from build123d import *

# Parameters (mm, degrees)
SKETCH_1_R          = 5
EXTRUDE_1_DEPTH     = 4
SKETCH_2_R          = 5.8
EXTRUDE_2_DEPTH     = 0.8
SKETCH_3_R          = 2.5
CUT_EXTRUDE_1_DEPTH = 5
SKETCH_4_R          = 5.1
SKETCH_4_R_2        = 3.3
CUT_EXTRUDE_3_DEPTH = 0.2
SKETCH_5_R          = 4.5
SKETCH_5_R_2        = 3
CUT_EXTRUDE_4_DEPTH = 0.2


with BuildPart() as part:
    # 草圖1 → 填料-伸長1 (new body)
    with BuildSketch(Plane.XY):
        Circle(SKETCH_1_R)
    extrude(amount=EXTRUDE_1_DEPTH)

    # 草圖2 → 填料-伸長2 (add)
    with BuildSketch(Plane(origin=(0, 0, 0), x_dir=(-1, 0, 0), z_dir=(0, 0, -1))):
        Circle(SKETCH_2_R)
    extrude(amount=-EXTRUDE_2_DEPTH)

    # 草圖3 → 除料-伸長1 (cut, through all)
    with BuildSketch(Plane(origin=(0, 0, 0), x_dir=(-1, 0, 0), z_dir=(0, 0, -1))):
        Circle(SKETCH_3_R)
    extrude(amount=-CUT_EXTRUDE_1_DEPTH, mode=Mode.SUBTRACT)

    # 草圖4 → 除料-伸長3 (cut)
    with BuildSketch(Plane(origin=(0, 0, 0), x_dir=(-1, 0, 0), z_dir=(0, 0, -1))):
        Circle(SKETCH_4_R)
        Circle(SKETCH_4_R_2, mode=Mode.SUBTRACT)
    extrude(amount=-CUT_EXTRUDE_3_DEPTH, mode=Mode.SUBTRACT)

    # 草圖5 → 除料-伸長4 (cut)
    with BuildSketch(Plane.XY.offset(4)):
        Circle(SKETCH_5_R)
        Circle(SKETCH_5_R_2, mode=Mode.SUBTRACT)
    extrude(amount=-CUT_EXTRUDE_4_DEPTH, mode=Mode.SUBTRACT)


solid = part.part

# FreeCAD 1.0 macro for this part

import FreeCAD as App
import Part
import Sketcher
from FreeCAD import Vector
Q = App.Units.Quantity

doc = App.newDocument("Part")
body = doc.addObject("PartDesign::Body", "Body")

sketch1 = body.newObject("Sketcher::SketchObject", "Sketch")
sketch1.AttachmentSupport = (doc.getObject("XY_Plane"), [""])
sketch1.MapMode = "FlatFace"
sketch1.addGeometry(Part.Circle(Vector(0, 0, 0), Vector(0, 0, 1), 5), False)
sketch1.addConstraint(Sketcher.Constraint("Coincident", 0, 3, -1, 1))
sketch1.addConstraint(Sketcher.Constraint("Diameter", 0, Q("10 mm")))
pad1 = body.newObject("PartDesign::Pad", "Pad")
pad1.Profile = sketch1
pad1.Length = 4

sketch2 = body.newObject("Sketcher::SketchObject", "Sketch001")
sketch2.AttachmentSupport = (doc.getObject("XY_Plane"), [""])
sketch2.MapMode = "FlatFace"
sketch2.addGeometry(Part.Circle(Vector(0, 0, 0), Vector(0, 0, 1), 6), False)
sketch2.addConstraint(Sketcher.Constraint("Coincident", 0, 3, -1, 1))
sketch2.addConstraint(Sketcher.Constraint("Diameter", 0, Q("11.6 mm")))
pad2 = body.newObject("PartDesign::Pad", "Pad001")
pad2.Profile = sketch2
pad2.Length = 0.8

sketch3 = body.newObject("Sketcher::SketchObject", "Sketch002")
sketch3.AttachmentSupport = (doc.getObject("XY_Plane"), [""])
sketch3.MapMode = "FlatFace"
sketch3.addGeometry(Part.Circle(Vector(0, 0, 0), Vector(0, 0, 1), 2.5), False)
sketch3.addConstraint(Sketcher.Constraint("Coincident", 0, 3, -1, 1))
sketch3.addConstraint(Sketcher.Constraint("Diameter", 0, Q("5 mm")))
pocket1 = body.newObject("PartDesign::Pocket", "Pocket")
pocket1.Profile = sketch3
pocket1.Type = "ThroughAll"
pocket1.Reversed = True

sketch4 = body.newObject("Sketcher::SketchObject", "Sketch003")
sketch4.AttachmentSupport = (doc.getObject("XY_Plane"), [""])
sketch4.MapMode = "FlatFace"
sketch4.addGeometry(Part.Circle(Vector(0, 0, 0), Vector(0, 0, 1), 5.1), False)
sketch4.addGeometry(Part.Circle(Vector(0, 0, 0), Vector(0, 0, 1), 3.3), False)
sketch4.addConstraint(Sketcher.Constraint("Coincident", 0, 3, -1, 1))
sketch4.addConstraint(Sketcher.Constraint("Coincident", 1, 3, -1, 1))
sketch4.addConstraint(Sketcher.Constraint("Diameter", 0, Q("10.2 mm")))
sketch4.addConstraint(Sketcher.Constraint("Diameter", 1, Q("6.6 mm")))
pocket2 = body.newObject("PartDesign::Pocket", "Pocket001")
pocket2.Profile = sketch4
pocket2.Length = 0.2
pocket2.Reversed = True

sketch5 = body.newObject("Sketcher::SketchObject", "Sketch004")
sketch5.AttachmentSupport = (doc.getObject("XY_Plane"), [""])
sketch5.MapMode = "FlatFace"
sketch5.AttachmentOffset = App.Placement(Vector(0, 0, 4), App.Rotation())
sketch5.addGeometry(Part.Circle(Vector(0, 0, 0), Vector(0, 0, 1), 4.5), False)
sketch5.addGeometry(Part.Circle(Vector(0, 0, 0), Vector(0, 0, 1), 3), False)
sketch5.addConstraint(Sketcher.Constraint("Coincident", 0, 3, -1, 1))
sketch5.addConstraint(Sketcher.Constraint("Coincident", 1, 3, -1, 1))
sketch5.addConstraint(Sketcher.Constraint("Diameter", 0, Q("9 mm")))
sketch5.addConstraint(Sketcher.Constraint("Diameter", 1, Q("6 mm")))
pocket3 = body.newObject("PartDesign::Pocket", "Pocket002")
pocket3.Profile = sketch5
pocket3.Length = 0.2

doc.recompute()
